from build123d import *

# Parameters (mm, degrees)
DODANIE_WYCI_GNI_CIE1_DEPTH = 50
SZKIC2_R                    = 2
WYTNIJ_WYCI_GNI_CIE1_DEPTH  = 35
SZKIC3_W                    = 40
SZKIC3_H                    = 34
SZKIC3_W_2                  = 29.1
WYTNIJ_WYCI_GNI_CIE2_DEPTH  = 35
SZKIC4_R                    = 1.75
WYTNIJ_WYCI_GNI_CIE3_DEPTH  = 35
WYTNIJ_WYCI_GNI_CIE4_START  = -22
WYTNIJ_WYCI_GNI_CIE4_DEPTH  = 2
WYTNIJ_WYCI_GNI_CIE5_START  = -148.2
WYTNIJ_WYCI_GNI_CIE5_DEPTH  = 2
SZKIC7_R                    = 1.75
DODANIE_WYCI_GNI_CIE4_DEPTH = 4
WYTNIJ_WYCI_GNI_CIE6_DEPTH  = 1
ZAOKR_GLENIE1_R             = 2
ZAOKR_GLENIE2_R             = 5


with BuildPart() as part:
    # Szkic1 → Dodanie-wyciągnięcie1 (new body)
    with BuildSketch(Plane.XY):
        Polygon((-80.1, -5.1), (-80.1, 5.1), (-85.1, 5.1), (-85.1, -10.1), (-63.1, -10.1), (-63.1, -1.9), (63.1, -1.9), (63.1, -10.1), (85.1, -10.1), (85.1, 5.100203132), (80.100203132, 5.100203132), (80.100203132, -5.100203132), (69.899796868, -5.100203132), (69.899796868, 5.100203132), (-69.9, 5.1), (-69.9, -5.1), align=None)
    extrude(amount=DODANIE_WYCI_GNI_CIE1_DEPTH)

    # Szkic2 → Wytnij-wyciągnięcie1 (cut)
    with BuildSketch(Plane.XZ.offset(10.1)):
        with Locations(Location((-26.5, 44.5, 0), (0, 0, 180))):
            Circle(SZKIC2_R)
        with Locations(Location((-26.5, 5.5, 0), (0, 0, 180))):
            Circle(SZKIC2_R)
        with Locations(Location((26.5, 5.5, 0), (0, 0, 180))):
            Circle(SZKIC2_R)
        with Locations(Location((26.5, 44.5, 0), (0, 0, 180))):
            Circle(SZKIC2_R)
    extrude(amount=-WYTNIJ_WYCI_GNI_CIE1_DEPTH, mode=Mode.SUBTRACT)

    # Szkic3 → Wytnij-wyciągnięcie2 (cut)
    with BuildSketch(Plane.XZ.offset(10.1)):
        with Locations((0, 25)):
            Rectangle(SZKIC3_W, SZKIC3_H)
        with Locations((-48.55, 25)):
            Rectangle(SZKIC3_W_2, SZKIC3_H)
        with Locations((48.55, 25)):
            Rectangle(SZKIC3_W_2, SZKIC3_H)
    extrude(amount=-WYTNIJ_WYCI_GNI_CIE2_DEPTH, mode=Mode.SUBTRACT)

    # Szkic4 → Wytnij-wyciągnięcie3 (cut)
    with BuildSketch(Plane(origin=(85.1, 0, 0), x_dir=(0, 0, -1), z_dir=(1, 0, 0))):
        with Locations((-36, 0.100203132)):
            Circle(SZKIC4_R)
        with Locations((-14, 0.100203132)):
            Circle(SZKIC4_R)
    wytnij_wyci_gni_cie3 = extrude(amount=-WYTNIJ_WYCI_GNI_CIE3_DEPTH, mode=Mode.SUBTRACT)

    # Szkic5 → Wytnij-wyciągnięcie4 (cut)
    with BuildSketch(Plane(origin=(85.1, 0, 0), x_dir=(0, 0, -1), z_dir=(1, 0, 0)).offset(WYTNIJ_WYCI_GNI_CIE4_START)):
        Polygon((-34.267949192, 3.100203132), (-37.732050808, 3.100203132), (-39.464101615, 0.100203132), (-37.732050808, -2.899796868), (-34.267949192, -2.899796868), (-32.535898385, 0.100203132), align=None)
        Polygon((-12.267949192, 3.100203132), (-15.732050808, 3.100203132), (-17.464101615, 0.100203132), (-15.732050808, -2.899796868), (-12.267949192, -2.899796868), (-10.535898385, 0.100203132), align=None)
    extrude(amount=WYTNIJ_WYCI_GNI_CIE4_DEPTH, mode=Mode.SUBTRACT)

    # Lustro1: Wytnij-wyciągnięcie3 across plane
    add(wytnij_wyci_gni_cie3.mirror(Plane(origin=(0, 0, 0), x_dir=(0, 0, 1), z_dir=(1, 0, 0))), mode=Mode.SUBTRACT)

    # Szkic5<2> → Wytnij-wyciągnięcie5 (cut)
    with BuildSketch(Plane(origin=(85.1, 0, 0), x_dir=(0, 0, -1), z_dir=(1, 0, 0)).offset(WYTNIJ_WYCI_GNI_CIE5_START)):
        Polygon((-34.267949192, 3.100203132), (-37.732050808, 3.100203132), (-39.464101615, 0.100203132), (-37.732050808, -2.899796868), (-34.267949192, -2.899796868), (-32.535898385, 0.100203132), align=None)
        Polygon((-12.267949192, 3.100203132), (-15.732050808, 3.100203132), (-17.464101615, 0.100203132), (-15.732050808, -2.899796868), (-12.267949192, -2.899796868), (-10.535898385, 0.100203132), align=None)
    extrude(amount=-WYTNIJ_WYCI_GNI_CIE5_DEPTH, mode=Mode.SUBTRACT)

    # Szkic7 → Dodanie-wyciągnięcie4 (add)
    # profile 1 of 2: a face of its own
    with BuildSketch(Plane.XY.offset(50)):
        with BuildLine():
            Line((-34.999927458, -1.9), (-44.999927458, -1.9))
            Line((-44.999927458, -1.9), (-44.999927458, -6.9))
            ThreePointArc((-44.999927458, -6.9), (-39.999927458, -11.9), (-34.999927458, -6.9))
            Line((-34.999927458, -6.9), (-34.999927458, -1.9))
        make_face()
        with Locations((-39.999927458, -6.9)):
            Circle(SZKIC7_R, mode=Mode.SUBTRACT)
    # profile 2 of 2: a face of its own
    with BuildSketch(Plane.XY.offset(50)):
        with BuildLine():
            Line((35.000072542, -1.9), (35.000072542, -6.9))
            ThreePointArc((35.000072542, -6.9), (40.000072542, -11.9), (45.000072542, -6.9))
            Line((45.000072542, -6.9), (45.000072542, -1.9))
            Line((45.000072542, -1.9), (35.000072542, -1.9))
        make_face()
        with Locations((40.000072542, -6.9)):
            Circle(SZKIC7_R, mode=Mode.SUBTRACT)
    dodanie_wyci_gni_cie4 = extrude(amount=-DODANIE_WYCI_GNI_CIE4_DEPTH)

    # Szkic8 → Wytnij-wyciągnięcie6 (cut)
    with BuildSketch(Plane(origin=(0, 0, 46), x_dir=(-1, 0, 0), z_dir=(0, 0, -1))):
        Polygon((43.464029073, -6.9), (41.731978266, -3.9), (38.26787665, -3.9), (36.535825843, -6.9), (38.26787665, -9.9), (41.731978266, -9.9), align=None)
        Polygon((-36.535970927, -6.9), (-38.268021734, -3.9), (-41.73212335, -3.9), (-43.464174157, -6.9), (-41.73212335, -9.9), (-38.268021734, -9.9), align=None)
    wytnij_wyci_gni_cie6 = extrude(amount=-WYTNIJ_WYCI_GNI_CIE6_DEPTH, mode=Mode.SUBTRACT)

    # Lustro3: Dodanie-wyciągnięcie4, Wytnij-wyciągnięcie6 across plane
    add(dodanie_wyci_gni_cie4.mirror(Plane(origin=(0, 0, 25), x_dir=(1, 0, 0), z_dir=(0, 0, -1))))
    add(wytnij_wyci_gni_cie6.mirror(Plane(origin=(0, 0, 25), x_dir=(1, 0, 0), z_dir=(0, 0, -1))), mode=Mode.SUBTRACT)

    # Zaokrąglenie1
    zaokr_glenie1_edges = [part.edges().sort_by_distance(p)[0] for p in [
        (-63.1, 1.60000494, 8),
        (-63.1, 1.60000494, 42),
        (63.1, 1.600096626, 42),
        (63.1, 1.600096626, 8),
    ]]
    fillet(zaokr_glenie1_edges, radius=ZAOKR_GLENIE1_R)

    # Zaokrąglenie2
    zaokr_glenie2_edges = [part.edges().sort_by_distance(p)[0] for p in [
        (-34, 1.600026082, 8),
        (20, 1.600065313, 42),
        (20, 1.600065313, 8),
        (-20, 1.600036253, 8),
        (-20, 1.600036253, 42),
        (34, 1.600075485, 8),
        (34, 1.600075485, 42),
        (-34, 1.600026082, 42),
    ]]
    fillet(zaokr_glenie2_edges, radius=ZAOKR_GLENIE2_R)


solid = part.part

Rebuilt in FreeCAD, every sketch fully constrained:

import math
import FreeCAD as App
import Part
import Sketcher
Q = App.Units.Quantity


def edges_at(feature, points):
    """Names of the edges that pass closest to the given points."""
    edges = feature.Shape.Edges
    near = lambda p: min(range(len(edges)), key=lambda i: edges[i].distToShape(Part.Vertex(*p))[0])
    return sorted({f"Edge{near(p) + 1}" for p in points})


def add_polygon(sketch, points):
    """Adds a closed chain of lines whose ends are joined by coincident constraints."""
    first, n = sketch.GeometryCount, len(points)
    for a, b in zip(points, points[1:] + points[:1]):
        sketch.addGeometry(Part.LineSegment(App.Vector(*a, 0), App.Vector(*b, 0)), False)
    for i in range(n):
        sketch.addConstraint(Sketcher.Constraint("Coincident", first + i, 2, first + (i + 1) % n, 1))

doc = App.newDocument("Part")
body = doc.addObject("PartDesign::Body", "Body")

# Sketch on XY plane
sketch1 = body.newObject("Sketcher::SketchObject", "Sketch")
sketch1.AttachmentSupport = (doc.getObject("XY_Plane"), [""])
sketch1.MapMode = "FlatFace"
add_polygon(sketch1, [(-80.1, -5.1), (-80.1, 5.1), (-85.1, 5.1), (-85.1, -10.1), (-63.1, -10.1), (-63.1, -1.9), (63.1, -1.9), (63.1, -10.1), (85.1, -10.1), (85.1, 5.1), (80.1, 5.1), (80.1, -5.1), (69.9, -5.1), (69.9, 5.1), (-69.9, 5.1), (-69.9, -5.1)])  # lines 0-15
sketch1.addConstraint([
    Sketcher.Constraint("Vertical", 0),
    Sketcher.Constraint("Horizontal", 1),
    Sketcher.Constraint("Vertical", 2),
    Sketcher.Constraint("Horizontal", 3),
    Sketcher.Constraint("Vertical", 4),
    Sketcher.Constraint("Horizontal", 5),
    Sketcher.Constraint("Vertical", 6),
    Sketcher.Constraint("Horizontal", 7),
    Sketcher.Constraint("Vertical", 8),
    Sketcher.Constraint("Horizontal", 9),
    Sketcher.Constraint("Vertical", 10),
    Sketcher.Constraint("Horizontal", 11),
    Sketcher.Constraint("Vertical", 12),
    Sketcher.Constraint("Vertical", 14),
    Sketcher.Constraint("Horizontal", 15),
    Sketcher.Constraint("Symmetric", 3, 2, 6, 2, -2),
    Sketcher.Constraint("Horizontal", 9, 2, 12, 2),
    Sketcher.Constraint("Horizontal", 1, 2, 13, 2),
    Sketcher.Constraint("Equal", 3, 7),
    Sketcher.Constraint("Equal", 15, 0),
    Sketcher.Constraint("Equal", 11, 10),
    Sketcher.Constraint("DistanceX", 1, 2, 1, 1, 5.0),
    Sketcher.Constraint("DistanceX", 3, 1, 3, 2, 22.0),
    Sketcher.Constraint("DistanceX", 5, 1, 5, 2, 126.2),
    Sketcher.Constraint("DistanceX", 15, 2, 15, 1, 10.2),
    Sketcher.Constraint("DistanceY", 2, 2, 2, 1, 15.2),
    Sketcher.Constraint("DistanceY", 4, 1, 4, 2, 8.2),
    Sketcher.Constraint("DistanceY", -1, 1, 0, 2, 5.1),
    Sketcher.Constraint("DistanceX", 9, 2, 9, 1, 4.999797),
    Sketcher.Constraint("DistanceX", 11, 2, 11, 1, 10.200406),
    Sketcher.Constraint("DistanceY", 8, 1, 8, 2, 15.200203),
])
pad1 = body.newObject("PartDesign::Pad", "Pad")
pad1.Profile = sketch1
pad1.Length = 50

# Sketch on XZ plane
sketch2 = body.newObject("Sketcher::SketchObject", "Sketch001")
sketch2.AttachmentSupport = (doc.getObject("XZ_Plane"), [""])
sketch2.MapMode = "FlatFace"
sketch2.AttachmentOffset = App.Placement(App.Vector(0, 0, 10.1), App.Rotation())
sketch2.addGeometry([
    Part.Circle(App.Vector(-26.5, 44.5, 0), App.Vector(0, 0, 1), 2),
    Part.Circle(App.Vector(-26.5, 5.5, 0), App.Vector(0, 0, 1), 2),
    Part.Circle(App.Vector(26.5, 5.5, 0), App.Vector(0, 0, 1), 2),
    Part.Circle(App.Vector(26.5, 44.5, 0), App.Vector(0, 0, 1), 2),
], False)
sketch2.addConstraint([
    Sketcher.Constraint("Equal", 0, 1),
    Sketcher.Constraint("Equal", 1, 2),
    Sketcher.Constraint("Equal", 2, 3),
    Sketcher.Constraint("Symmetric", 1, 3, 2, 3, -2),
    Sketcher.Constraint("Symmetric", 0, 3, 3, 3, -2),
    Sketcher.Constraint("Vertical", 0, 3, 1, 3),
    Sketcher.Constraint("Diameter", 0, 4.0),
    Sketcher.Constraint("DistanceY", 1, 3, 0, 3, 39.0),
    Sketcher.Constraint("DistanceX", 1, 3, 2, 3, 53.0),
    Sketcher.Constraint("DistanceY", -1, 1, 0, 3, 44.5),
])
pocket1 = body.newObject("PartDesign::Pocket", "Pocket")
pocket1.Profile = sketch2
pocket1.Length = 35

# Sketch on XZ plane
sketch3 = body.newObject("Sketcher::SketchObject", "Sketch002")
sketch3.AttachmentSupport = (doc.getObject("XZ_Plane"), [""])
sketch3.MapMode = "FlatFace"
sketch3.AttachmentOffset = App.Placement(App.Vector(0, 0, 10.1), App.Rotation())
add_polygon(sketch3, [(-20, 42), (-20, 8), (20, 8), (20, 42)])  # lines 0-3
add_polygon(sketch3, [(-63, 42), (-63, 8), (-34, 8), (-34, 42)])  # lines 4-7
add_polygon(sketch3, [(34, 42), (34, 8), (63, 8), (63, 42)])  # lines 8-11
sketch3.addConstraint([
    Sketcher.Constraint("Vertical", 0),
    Sketcher.Constraint("Horizontal", 1),
    Sketcher.Constraint("Vertical", 2),
    Sketcher.Constraint("Horizontal", 3),
    Sketcher.Constraint("Vertical", 4),
    Sketcher.Constraint("Horizontal", 5),
    Sketcher.Constraint("Vertical", 6),
    Sketcher.Constraint("Horizontal", 7),
    Sketcher.Constraint("Vertical", 8),
    Sketcher.Constraint("Horizontal", 9),
    Sketcher.Constraint("Vertical", 10),
    Sketcher.Constraint("Horizontal", 11),
    Sketcher.Constraint("Symmetric", 5, 2, 8, 2, -2),
    Sketcher.Constraint("Symmetric", 7, 2, 10, 2, -2),
    Sketcher.Constraint("Horizontal", 1, 2, 4, 2),
    Sketcher.Constraint("Horizontal", 3, 2, 6, 2),
    Sketcher.Constraint("DistanceX", 1, 1, 1, 2, 40.0),
    Sketcher.Constraint("DistanceY", 0, 2, 0, 1, 34.0),
    Sketcher.Constraint("DistanceX", 5, 1, 5, 2, 29.1),
    Sketcher.Constraint("DistanceX", 0, 2, -1, 1, 20.0),
    Sketcher.Constraint("DistanceY", -1, 1, 0, 2, 8.0),
    Sketcher.Constraint("DistanceX", 5, 2, -1, 1, 34.0),
])
pocket2 = body.newObject("PartDesign::Pocket", "Pocket001")
pocket2.Profile = sketch3
pocket2.Length = 35

# Sketch on YZ plane
sketch4 = body.newObject("Sketcher::SketchObject", "Sketch003")
sketch4.AttachmentSupport = (doc.getObject("YZ_Plane"), [""])
sketch4.MapMode = "FlatFace"
sketch4.AttachmentOffset = App.Placement(App.Vector(0, 0, 85.1), App.Rotation())
sketch4.addGeometry([
    Part.Circle(App.Vector(0.1, 36, 0), App.Vector(0, 0, 1), 1.8),
    Part.Circle(App.Vector(0.1, 14, 0), App.Vector(0, 0, 1), 1.8),
], False)
sketch4.addConstraint([
    Sketcher.Constraint("Equal", 0, 1),
    Sketcher.Constraint("Vertical", 0, 3, 1, 3),
    Sketcher.Constraint("Diameter", 0, 3.5),
    Sketcher.Constraint("DistanceY", -1, 1, 0, 3, 36.0),
    Sketcher.Constraint("DistanceY", -1, 1, 1, 3, 14.0),
    Sketcher.Constraint("DistanceX", -1, 1, 0, 3, 0.100203),
])
pocket3 = body.newObject("PartDesign::Pocket", "Pocket002")
pocket3.Profile = sketch4
pocket3.Length = 35

# Sketch on YZ plane
sketch5 = body.newObject("Sketcher::SketchObject", "Sketch004")
sketch5.AttachmentSupport = (doc.getObject("YZ_Plane"), [""])
sketch5.MapMode = "FlatFace"
sketch5.AttachmentOffset = App.Placement(App.Vector(0, 0, 63.1), App.Rotation())
add_polygon(sketch5, [(3.1, 34.3), (3.1, 37.7), (0.1, 39.5), (-2.9, 37.7), (-2.9, 34.3), (0.1, 32.5)])  # lines 0-5
add_polygon(sketch5, [(3.1, 12.3), (3.1, 15.7), (0.1, 17.5), (-2.9, 15.7), (-2.9, 12.3), (0.1, 10.5)])  # lines 6-11
sketch5.addConstraint([
    Sketcher.Constraint("Vertical", 0),
    Sketcher.Constraint("Vertical", 3),
    Sketcher.Constraint("Vertical", 6),
    Sketcher.Constraint("Vertical", 9),
    Sketcher.Constraint("Parallel", 1, 4),
    Sketcher.Constraint("Parallel", 2, 5),
    Sketcher.Constraint("Parallel", 4, 7),
    Sketcher.Constraint("Parallel", 5, 8),
    Sketcher.Constraint("Parallel", 7, 10),
    Sketcher.Constraint("Parallel", 8, 11),
    Sketcher.Constraint("Horizontal", 0, 2, 2, 2),
    Sketcher.Constraint("Horizontal", 3, 2, 5, 2),
    Sketcher.Constraint("Horizontal", 6, 2, 8, 2),
    Sketcher.Constraint("Horizontal", 9, 2, 11, 2),
    Sketcher.Constraint("Vertical", 1, 2, 4, 2),
    Sketcher.Constraint("Vertical", 5, 2, 6, 2),
    Sketcher.Constraint("Vertical", 4, 2, 7, 2),
    Sketcher.Constraint("Equal", 3, 6),
    Sketcher.Constraint("Angle", 1, Q("150 deg")),
    Sketcher.Constraint("DistanceX", 1, 2, 0, 2, 3.0),
    Sketcher.Constraint("DistanceY", 6, 2, 0, 2, 22.0),
    Sketcher.Constraint("DistanceY", 0, 1, 0, 2, 3.464102),
    Sketcher.Constraint("DistanceY", -1, 1, 1, 2, 39.464102),
    Sketcher.Constraint("DistanceX", -1, 1, 0, 2, 3.100203),
])
pocket4 = body.newObject("PartDesign::Pocket", "Pocket003")
pocket4.Profile = sketch5
pocket4.Length = 2
pocket4.Reversed = True
doc.recompute()

mirrored = body.newObject("PartDesign::Mirrored", "Mirrored")
mirrored.Originals = [pocket3]
mirrored.MirrorPlane = (doc.getObject("YZ_Plane"), [""])
body.Tip = mirrored

# Sketch on YZ plane
sketch6 = body.newObject("Sketcher::SketchObject", "Sketch005")
sketch6.AttachmentSupport = (doc.getObject("YZ_Plane"), [""])
sketch6.MapMode = "FlatFace"
sketch6.AttachmentOffset = App.Placement(App.Vector(0, 0, -63.1), App.Rotation())
add_polygon(sketch6, [(3.1, 34.3), (3.1, 37.7), (0.1, 39.5), (-2.9, 37.7), (-2.9, 34.3), (0.1, 32.5)])  # lines 0-5
add_polygon(sketch6, [(3.1, 12.3), (3.1, 15.7), (0.1, 17.5), (-2.9, 15.7), (-2.9, 12.3), (0.1, 10.5)])  # lines 6-11
sketch6.addConstraint([
    Sketcher.Constraint("Vertical", 0),
    Sketcher.Constraint("Vertical", 3),
    Sketcher.Constraint("Vertical", 6),
    Sketcher.Constraint("Vertical", 9),
    Sketcher.Constraint("Parallel", 1, 4),
    Sketcher.Constraint("Parallel", 2, 5),
    Sketcher.Constraint("Parallel", 4, 7),
    Sketcher.Constraint("Parallel", 5, 8),
    Sketcher.Constraint("Parallel", 7, 10),
    Sketcher.Constraint("Parallel", 8, 11),
    Sketcher.Constraint("Horizontal", 0, 2, 2, 2),
    Sketcher.Constraint("Horizontal", 3, 2, 5, 2),
    Sketcher.Constraint("Horizontal", 6, 2, 8, 2),
    Sketcher.Constraint("Horizontal", 9, 2, 11, 2),
    Sketcher.Constraint("Vertical", 1, 2, 4, 2),
    Sketcher.Constraint("Vertical", 5, 2, 6, 2),
    Sketcher.Constraint("Vertical", 4, 2, 7, 2),
    Sketcher.Constraint("Equal", 3, 6),
    Sketcher.Constraint("Angle", 1, Q("150 deg")),
    Sketcher.Constraint("DistanceX", 1, 2, 0, 2, 3.0),
    Sketcher.Constraint("DistanceY", 6, 2, 0, 2, 22.0),
    Sketcher.Constraint("DistanceY", 0, 1, 0, 2, 3.464102),
    Sketcher.Constraint("DistanceY", -1, 1, 1, 2, 39.464102),
    Sketcher.Constraint("DistanceX", -1, 1, 0, 2, 3.100203),
])
pocket5 = body.newObject("PartDesign::Pocket", "Pocket004")
pocket5.Profile = sketch6
pocket5.Length = 2

# Sketch on XY plane
sketch7 = body.newObject("Sketcher::SketchObject", "Sketch006")
sketch7.AttachmentSupport = (doc.getObject("XY_Plane"), [""])
sketch7.MapMode = "FlatFace"
sketch7.AttachmentOffset = App.Placement(App.Vector(0, 0, 50), App.Rotation())
sketch7.addGeometry([
    Part.LineSegment(App.Vector(-35, -1.9, 0), App.Vector(-45, -1.9, 0)),  # 0
    Part.LineSegment(App.Vector(-45, -1.9, 0), App.Vector(-45, -6.9, 0)),  # 1
    Part.ArcOfCircle(Part.Circle(App.Vector(-40, -6.9, 0), App.Vector(0, 0, 1), 5), math.radians(180), math.radians(360)),  # 2
    Part.LineSegment(App.Vector(-35, -6.9, 0), App.Vector(-35, -1.9, 0)),  # 3
    Part.Circle(App.Vector(-40, -6.9, 0), App.Vector(0, 0, 1), 1.8),  # 4
    Part.LineSegment(App.Vector(35, -1.9, 0), App.Vector(35, -6.9, 0)),  # 5
    Part.ArcOfCircle(Part.Circle(App.Vector(40, -6.9, 0), App.Vector(0, 0, 1), 5), math.radians(180), math.radians(360)),  # 6
    Part.LineSegment(App.Vector(45, -6.9, 0), App.Vector(45, -1.9, 0)),  # 7
    Part.LineSegment(App.Vector(45, -1.9, 0), App.Vector(35, -1.9, 0)),  # 8
    Part.Circle(App.Vector(40, -6.9, 0), App.Vector(0, 0, 1), 1.8),  # 9
], False)
sketch7.addConstraint([
    Sketcher.Constraint("Coincident", 0, 2, 1, 1),
    Sketcher.Constraint("Tangent", 1, 2, 2, 1),
    Sketcher.Constraint("Tangent", 2, 2, 3, 1),
    Sketcher.Constraint("Coincident", 3, 2, 0, 1),
    Sketcher.Constraint("Tangent", 5, 2, 6, 1),
    Sketcher.Constraint("Tangent", 6, 2, 7, 1),
    Sketcher.Constraint("Coincident", 7, 2, 8, 1),
    Sketcher.Constraint("Coincident", 8, 2, 5, 1),
    Sketcher.Constraint("Horizontal", 0),
    Sketcher.Constraint("Vertical", 1),
    Sketcher.Constraint("Vertical", 3),
    Sketcher.Constraint("Vertical", 5),
    Sketcher.Constraint("Vertical", 7),
    Sketcher.Constraint("Horizontal", 8),
    Sketcher.Constraint("Coincident", 4, 3, 2, 3),
    Sketcher.Constraint("Coincident", 9, 3, 6, 3),
    Sketcher.Constraint("Equal", 2, 6),
    Sketcher.Constraint("Equal", 4, 9),
    Sketcher.Constraint("Horizontal", 4, 3, 6, 3),
    Sketcher.Constraint("Horizontal", 3, 2, 7, 2),
    Sketcher.Constraint("Radius", 2, 5.0),
    Sketcher.Constraint("Diameter", 4, 3.5),
    Sketcher.Constraint("DistanceY", 1, 2, 1, 1, 5.0),
    Sketcher.Constraint("DistanceX", 2, 3, 6, 3, 80.0),
    Sketcher.Constraint("DistanceY", 2, 3, -1, 1, 6.9),
    Sketcher.Constraint("DistanceX", 2, 3, -1, 1, 39.999927),
])
pad2 = body.newObject("PartDesign::Pad", "Pad001")
pad2.Profile = sketch7
pad2.Length = 4
pad2.Reversed = True

# Sketch on XY plane
sketch8 = body.newObject("Sketcher::SketchObject", "Sketch007")
sketch8.AttachmentSupport = (doc.getObject("XY_Plane"), [""])
sketch8.MapMode = "FlatFace"
sketch8.AttachmentOffset = App.Placement(App.Vector(0, 0, 46), App.Rotation())
add_polygon(sketch8, [(-43.5, -6.9), (-41.7, -3.9), (-38.3, -3.9), (-36.5, -6.9), (-38.3, -9.9), (-41.7, -9.9)])  # lines 0-5
add_polygon(sketch8, [(36.5, -6.9), (38.3, -3.9), (41.7, -3.9), (43.5, -6.9), (41.7, -9.9), (38.3, -9.9)])  # lines 6-11
sketch8.addConstraint([
    Sketcher.Constraint("Horizontal", 1),
    Sketcher.Constraint("Horizontal", 4),
    Sketcher.Constraint("Horizontal", 7),
    Sketcher.Constraint("Horizontal", 10),
    Sketcher.Constraint("Parallel", 0, 3),
    Sketcher.Constraint("Parallel", 2, 5),
    Sketcher.Constraint("Parallel", 3, 6),
    Sketcher.Constraint("Parallel", 5, 8),
    Sketcher.Constraint("Parallel", 6, 9),
    Sketcher.Constraint("Parallel", 8, 11),
    Sketcher.Constraint("Horizontal", 2, 2, 5, 2),
    Sketcher.Constraint("Horizontal", 1, 2, 6, 2),
    Sketcher.Constraint("Horizontal", 5, 2, 8, 2),
    Sketcher.Constraint("Horizontal", 4, 2, 9, 2),
    Sketcher.Constraint("Horizontal", 8, 2, 11, 2),
    Sketcher.Constraint("Vertical", 1, 2, 3, 2),
    Sketcher.Constraint("Vertical", 0, 2, 4, 2),
    Sketcher.Constraint("Equal", 4, 7),
    Sketcher.Constraint("Angle", 0, Q("60 deg")),
    Sketcher.Constraint("DistanceY", 2, 2, 1, 2, 3.0),
    Sketcher.Constraint("DistanceX", 0, 2, 6, 2, 80.0),
    Sketcher.Constraint("DistanceY", 0, 2, -1, 1, 3.9),
    Sketcher.Constraint("DistanceX", 1, 1, 1, 2, 3.464102),
    Sketcher.Constraint("DistanceX", 0, 2, -1, 1, 41.731978),
])
pocket6 = body.newObject("PartDesign::Pocket", "Pocket005")
pocket6.Profile = sketch8
pocket6.Length = 1
pocket6.Reversed = True
doc.recompute()

datumplane = body.newObject("PartDesign::Plane", "DatumPlane")
datumplane.AttachmentSupport = (doc.getObject("XY_Plane"), [""])
datumplane.MapMode = "FlatFace"
datumplane.AttachmentOffset = App.Placement(App.Vector(0, 0, 25), App.Rotation())
mirrored2 = body.newObject("PartDesign::Mirrored", "Mirrored001")
mirrored2.Originals = [pad2, pocket6]
mirrored2.MirrorPlane = (datumplane, [""])
body.Tip = mirrored2
doc.recompute()

fillet = body.newObject("PartDesign::Fillet", "Fillet")
fillet.Base = (mirrored2, edges_at(mirrored2, [
    (-63.1, 1.6, 8),
    (-63.1, 1.6, 42),
    (63.1, 1.6, 42),
    (63.1, 1.6, 8),
]))
fillet.Radius = 2
doc.recompute()

fillet2 = body.newObject("PartDesign::Fillet", "Fillet001")
fillet2.Base = (fillet, edges_at(fillet, [
    (-34, 1.6, 8),
    (20, 1.6, 42),
    (20, 1.6, 8),
    (-20, 1.6, 8),
    (-20, 1.6, 42),
    (34, 1.6, 8),
    (34, 1.6, 42),
    (-34, 1.6, 42),
]))
fillet2.Radius = 5

doc.recompute()
